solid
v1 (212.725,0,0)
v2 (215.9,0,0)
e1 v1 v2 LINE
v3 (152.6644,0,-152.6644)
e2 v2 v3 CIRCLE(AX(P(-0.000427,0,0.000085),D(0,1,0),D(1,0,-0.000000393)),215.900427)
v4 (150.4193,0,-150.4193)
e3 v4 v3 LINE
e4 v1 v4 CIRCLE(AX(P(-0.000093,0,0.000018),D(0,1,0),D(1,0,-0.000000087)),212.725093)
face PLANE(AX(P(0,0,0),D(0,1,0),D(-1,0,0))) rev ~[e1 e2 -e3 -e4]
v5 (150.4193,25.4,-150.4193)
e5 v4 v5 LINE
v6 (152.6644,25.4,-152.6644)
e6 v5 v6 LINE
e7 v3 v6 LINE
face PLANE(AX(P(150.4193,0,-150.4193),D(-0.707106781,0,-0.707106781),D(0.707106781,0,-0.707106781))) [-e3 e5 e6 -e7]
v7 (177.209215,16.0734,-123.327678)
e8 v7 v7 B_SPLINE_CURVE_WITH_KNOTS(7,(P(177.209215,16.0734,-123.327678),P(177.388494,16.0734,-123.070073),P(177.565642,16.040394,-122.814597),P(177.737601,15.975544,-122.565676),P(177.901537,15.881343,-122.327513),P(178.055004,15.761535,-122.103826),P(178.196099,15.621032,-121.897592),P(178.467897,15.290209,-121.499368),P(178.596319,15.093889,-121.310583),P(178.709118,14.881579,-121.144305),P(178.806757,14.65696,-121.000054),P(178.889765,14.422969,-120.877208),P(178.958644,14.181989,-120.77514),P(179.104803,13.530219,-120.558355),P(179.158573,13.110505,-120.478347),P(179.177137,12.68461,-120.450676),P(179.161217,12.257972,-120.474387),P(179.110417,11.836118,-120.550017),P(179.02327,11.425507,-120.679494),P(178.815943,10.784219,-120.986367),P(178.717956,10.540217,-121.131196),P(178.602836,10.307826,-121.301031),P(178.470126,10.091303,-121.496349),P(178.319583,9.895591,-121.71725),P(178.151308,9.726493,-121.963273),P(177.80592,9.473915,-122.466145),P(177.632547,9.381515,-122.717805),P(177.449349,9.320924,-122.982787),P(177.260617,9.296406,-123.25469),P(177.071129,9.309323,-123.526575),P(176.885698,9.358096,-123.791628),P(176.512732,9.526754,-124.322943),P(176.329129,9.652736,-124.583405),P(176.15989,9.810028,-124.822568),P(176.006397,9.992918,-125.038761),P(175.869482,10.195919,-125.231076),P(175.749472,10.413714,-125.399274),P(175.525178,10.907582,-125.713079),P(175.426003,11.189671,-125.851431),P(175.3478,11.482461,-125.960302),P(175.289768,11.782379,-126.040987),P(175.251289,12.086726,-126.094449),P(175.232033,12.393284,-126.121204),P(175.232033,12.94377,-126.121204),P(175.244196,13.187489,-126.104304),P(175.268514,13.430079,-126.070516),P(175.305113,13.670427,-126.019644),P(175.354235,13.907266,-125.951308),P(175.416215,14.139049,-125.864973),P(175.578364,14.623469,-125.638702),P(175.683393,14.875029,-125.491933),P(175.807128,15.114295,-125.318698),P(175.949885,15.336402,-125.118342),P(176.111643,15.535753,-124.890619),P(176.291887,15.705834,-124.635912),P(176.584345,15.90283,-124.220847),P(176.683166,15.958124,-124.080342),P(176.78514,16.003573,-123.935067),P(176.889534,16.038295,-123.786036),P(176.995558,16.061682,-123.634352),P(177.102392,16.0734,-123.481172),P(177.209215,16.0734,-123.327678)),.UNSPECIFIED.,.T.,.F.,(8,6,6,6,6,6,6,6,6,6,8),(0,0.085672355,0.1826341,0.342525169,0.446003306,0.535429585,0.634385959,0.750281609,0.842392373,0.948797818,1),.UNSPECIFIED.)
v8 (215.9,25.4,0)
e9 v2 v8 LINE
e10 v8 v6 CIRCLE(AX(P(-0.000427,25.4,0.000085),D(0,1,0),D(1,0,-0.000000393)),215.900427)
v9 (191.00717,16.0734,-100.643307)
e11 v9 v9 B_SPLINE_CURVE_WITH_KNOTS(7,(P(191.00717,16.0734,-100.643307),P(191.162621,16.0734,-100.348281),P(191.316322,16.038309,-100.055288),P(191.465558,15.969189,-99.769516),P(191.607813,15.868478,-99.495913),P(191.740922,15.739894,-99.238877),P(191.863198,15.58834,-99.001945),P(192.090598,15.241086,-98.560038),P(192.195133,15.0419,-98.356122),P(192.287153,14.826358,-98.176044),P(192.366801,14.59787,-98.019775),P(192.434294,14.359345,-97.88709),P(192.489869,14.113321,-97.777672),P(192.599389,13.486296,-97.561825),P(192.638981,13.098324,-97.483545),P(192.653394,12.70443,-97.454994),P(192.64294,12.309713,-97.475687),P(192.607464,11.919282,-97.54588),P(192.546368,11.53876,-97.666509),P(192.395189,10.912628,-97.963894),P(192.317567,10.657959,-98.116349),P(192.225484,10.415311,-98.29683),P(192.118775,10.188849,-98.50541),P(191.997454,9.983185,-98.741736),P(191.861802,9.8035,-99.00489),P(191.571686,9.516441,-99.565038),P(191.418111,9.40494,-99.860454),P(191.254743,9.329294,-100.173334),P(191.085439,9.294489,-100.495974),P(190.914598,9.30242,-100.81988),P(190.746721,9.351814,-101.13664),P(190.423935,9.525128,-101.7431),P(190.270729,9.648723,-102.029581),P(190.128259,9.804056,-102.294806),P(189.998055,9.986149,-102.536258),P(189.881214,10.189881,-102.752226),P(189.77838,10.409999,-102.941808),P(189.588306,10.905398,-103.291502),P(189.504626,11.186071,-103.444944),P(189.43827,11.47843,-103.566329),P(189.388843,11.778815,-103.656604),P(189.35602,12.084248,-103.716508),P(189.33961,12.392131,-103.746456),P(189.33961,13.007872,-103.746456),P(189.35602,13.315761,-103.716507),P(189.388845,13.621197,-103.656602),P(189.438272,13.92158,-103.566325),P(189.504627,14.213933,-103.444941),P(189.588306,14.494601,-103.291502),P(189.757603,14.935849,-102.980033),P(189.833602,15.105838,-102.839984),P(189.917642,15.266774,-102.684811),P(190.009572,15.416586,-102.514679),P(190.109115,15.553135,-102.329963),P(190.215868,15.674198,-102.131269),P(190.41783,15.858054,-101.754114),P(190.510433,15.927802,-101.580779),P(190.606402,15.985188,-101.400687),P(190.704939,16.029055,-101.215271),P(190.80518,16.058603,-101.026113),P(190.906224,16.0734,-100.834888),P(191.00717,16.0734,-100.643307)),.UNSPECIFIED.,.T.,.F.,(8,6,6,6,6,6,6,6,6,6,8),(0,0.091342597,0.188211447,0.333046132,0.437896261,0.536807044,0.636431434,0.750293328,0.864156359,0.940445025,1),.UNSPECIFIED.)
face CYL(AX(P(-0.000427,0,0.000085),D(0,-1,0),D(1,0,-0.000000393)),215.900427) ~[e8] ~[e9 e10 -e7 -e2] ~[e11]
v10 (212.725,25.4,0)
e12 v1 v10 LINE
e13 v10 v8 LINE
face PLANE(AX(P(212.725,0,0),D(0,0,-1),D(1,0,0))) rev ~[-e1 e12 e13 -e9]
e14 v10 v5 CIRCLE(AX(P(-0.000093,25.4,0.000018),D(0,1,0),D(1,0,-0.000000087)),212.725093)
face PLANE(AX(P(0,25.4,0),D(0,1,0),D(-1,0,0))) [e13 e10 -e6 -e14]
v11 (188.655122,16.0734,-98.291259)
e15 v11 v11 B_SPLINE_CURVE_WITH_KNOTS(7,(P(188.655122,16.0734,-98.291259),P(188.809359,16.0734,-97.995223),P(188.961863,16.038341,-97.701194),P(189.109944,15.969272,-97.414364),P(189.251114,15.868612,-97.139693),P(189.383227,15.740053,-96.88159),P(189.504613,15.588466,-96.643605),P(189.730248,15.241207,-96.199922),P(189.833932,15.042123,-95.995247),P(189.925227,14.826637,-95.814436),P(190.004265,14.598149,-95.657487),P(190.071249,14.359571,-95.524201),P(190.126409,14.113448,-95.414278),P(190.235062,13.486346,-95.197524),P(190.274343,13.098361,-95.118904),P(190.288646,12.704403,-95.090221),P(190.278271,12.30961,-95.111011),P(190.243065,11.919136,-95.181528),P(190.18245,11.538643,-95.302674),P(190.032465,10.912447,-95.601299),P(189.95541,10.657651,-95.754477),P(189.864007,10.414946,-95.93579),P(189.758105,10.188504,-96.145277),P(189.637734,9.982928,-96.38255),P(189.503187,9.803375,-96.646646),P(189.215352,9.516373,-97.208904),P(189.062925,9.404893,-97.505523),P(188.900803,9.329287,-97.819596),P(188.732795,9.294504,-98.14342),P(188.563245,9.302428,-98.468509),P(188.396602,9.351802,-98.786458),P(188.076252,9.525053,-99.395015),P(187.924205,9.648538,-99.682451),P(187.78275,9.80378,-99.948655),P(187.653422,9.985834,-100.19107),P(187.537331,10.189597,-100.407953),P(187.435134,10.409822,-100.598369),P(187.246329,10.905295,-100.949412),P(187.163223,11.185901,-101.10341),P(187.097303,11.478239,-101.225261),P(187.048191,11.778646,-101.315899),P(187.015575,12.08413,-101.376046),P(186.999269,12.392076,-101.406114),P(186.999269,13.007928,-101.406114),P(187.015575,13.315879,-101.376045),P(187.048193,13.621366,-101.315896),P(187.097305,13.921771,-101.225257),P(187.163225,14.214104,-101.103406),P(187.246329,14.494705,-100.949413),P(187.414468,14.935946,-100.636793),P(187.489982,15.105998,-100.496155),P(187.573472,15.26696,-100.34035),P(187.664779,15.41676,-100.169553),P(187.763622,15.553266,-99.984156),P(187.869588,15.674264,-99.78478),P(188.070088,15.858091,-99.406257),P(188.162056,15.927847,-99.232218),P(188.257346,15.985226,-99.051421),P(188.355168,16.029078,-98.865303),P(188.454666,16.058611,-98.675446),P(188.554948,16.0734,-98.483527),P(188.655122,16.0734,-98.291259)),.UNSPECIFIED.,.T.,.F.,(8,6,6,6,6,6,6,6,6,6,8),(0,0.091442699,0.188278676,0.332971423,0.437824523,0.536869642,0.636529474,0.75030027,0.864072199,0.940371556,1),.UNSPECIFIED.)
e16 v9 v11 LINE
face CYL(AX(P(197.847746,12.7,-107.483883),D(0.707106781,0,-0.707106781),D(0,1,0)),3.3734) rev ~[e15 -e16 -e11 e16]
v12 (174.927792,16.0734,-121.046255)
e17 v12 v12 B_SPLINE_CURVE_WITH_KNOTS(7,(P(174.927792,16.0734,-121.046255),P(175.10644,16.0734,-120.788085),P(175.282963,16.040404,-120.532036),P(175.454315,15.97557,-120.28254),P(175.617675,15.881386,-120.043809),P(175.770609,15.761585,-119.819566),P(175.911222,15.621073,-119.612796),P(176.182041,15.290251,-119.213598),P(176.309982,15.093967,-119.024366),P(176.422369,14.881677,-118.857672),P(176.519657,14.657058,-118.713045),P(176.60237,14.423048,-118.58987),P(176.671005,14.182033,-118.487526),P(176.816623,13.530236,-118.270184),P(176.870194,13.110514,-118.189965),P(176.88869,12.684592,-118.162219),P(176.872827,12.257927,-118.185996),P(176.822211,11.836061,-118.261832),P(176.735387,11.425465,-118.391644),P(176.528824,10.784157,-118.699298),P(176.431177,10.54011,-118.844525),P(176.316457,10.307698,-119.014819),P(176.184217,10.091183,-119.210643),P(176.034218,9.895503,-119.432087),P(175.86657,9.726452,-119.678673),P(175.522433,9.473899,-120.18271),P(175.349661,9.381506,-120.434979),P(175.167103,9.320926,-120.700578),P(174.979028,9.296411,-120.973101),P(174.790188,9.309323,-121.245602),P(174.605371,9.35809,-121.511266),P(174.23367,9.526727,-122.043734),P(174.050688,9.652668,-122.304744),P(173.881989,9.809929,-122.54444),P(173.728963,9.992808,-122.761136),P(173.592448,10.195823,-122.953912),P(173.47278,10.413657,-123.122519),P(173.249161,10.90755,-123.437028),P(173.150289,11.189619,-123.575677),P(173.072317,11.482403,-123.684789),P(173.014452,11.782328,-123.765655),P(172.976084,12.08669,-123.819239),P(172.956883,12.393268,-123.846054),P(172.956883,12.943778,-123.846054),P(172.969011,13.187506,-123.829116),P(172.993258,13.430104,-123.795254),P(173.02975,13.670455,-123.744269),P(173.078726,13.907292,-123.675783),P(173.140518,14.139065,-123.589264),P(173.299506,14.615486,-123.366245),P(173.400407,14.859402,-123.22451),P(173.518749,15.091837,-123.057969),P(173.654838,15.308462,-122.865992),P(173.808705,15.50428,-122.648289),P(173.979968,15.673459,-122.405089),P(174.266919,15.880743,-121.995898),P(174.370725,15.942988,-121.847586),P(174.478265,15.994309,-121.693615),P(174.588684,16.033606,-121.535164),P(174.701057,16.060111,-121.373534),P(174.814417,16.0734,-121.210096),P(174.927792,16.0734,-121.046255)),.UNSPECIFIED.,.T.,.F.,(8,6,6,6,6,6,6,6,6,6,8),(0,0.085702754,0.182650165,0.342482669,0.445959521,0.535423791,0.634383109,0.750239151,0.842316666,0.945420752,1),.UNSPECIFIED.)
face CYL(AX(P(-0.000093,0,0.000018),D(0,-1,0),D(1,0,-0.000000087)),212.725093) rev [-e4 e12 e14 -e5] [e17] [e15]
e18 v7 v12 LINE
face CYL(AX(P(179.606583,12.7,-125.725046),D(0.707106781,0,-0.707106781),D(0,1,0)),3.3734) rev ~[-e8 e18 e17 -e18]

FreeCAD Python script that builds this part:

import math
import FreeCAD as App
import Part
import Sketcher

V = App.Vector
Q = App.Units.Quantity

doc = App.newDocument("Part")
params = doc.addObject("Spreadsheet::Sheet", "Params")
for row, (alias, value) in enumerate([
    ("sketch1_radius", "8.5 in"),
    ("sketch1_width", "0.125 in"),
    ("pad1_length", "1 in"),
    ("sketch2_diameter", "0.265622 in"),
    ("pocket1_length", "0.7 in"),
], start=1):
    params.set(f"A{row}", alias)
    params.set(f"B{row}", "=" + value)
    params.setAlias(f"B{row}", alias)

body = doc.addObject("PartDesign::Body", "Body")

# Sketch on XZ plane
sketch1 = body.newObject("Sketcher::SketchObject", "Sketch")
sketch1.AttachmentSupport = (doc.getObject("XZ_Plane"), [""])
sketch1.MapMode = "FlatFace"
sketch1.addGeometry([
    Part.LineSegment(V(212.7, 0, 0), V(215.9, 0, 0)),
    Part.ArcOfCircle(Part.Circle(V(0, 0, 0), V(0, 0, 1), 215.9), math.radians(-45), math.radians(0)),
    Part.LineSegment(V(152.7, -152.7, 0), V(150.4, -150.4, 0)),
    Part.ArcOfCircle(Part.Circle(V(0, 0, 0), V(0, 0, 1), 212.7), math.radians(-45), math.radians(0)),
], False)
sketch1.addConstraint([
    Sketcher.Constraint("Coincident", 0, 2, 1, 2),
    Sketcher.Constraint("Coincident", 1, 1, 2, 1),
    Sketcher.Constraint("Coincident", 2, 2, 3, 1),
    Sketcher.Constraint("Coincident", 3, 2, 0, 1),
    Sketcher.Constraint("Horizontal", 0),
    Sketcher.Constraint("Coincident", 1, 3, -1, 1),
    Sketcher.Constraint("Coincident", 3, 3, -1, 1),
    Sketcher.Constraint("PointOnObject", 0, 2, -1),
    Sketcher.Constraint("Radius", 1, Q("8.5 in")),
    Sketcher.Constraint("DistanceX", 0, 1, 0, 2, Q("0.125 in")),
    Sketcher.Constraint("Angle", 2, Q("135 deg")),
    Sketcher.Constraint("DistanceX", -1, 1, 1, 1, Q("6.0104 in")),
])
sketch1.setExpression("Constraints[8]", "Params.sketch1_radius")
sketch1.setExpression("Constraints[9]", "Params.sketch1_width")
pad1 = body.newObject("PartDesign::Pad", "Pad")
pad1.Profile = sketch1
pad1.setExpression("Length", "Params.pad1_length")
pad1.Reversed = True

# Sketch on an angled plane
sketch2 = body.newObject("Sketcher::SketchObject", "Sketch001")
sketch2.Placement = App.Placement(V(152.6644, 0, -152.6644), App.Rotation(V(0, 1, 0), V(0.707106781, 0, 0.707106781), V(0.707106781, 0, -0.707106781), "ZXY"))
sketch2.addGeometry([
    Part.Circle(V(12.7, 38.1, 0), V(0, 0, 1), 3.4),
    Part.Circle(V(12.7, 63.9, 0), V(0, 0, 1), 3.4),
], False)
sketch2.addConstraint([
    Sketcher.Constraint("Equal", 0, 1),
    Sketcher.Constraint("Vertical", 0, 3, 1, 3),
    Sketcher.Constraint("Diameter", 0, Q("0.265622 in")),
    Sketcher.Constraint("DistanceX", -1, 1, 0, 3, Q("0.5 in")),
    Sketcher.Constraint("DistanceY", -1, 1, 0, 3, Q("1.5 in")),
    Sketcher.Constraint("DistanceY", -1, 1, 1, 3, Q("2.5156299 in")),
])
sketch2.setExpression("Constraints[2]", "Params.sketch2_diameter")
pocket1 = body.newObject("PartDesign::Pocket", "Pocket")
pocket1.Profile = sketch2
pocket1.setExpression("Length", "Params.pocket1_length")

doc.recompute()
